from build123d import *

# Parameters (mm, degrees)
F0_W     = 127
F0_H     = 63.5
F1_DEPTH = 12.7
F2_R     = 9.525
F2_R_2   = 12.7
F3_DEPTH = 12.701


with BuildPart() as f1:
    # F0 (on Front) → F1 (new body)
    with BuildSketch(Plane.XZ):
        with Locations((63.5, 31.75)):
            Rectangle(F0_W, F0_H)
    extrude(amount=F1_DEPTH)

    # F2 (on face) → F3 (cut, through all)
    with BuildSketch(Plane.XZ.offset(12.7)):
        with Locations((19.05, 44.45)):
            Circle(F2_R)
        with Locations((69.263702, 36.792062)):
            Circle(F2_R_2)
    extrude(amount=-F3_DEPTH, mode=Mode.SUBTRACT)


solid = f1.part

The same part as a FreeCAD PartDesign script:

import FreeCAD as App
import Part
import Sketcher
from FreeCAD import Vector
Q = App.Units.Quantity

doc = App.newDocument("Part")
body = doc.addObject("PartDesign::Body", "Body")

# Sketch on XZ plane
sketch1 = body.newObject("Sketcher::SketchObject", "Sketch")
sketch1.AttachmentSupport = (doc.getObject("XZ_Plane"), [""])
sketch1.MapMode = "FlatFace"
sketch1.addGeometry(Part.LineSegment(Vector(0, 64, 0), Vector(0, 0, 0)), False)
sketch1.addGeometry(Part.LineSegment(Vector(0, 0, 0), Vector(127, 0, 0)), False)
sketch1.addGeometry(Part.LineSegment(Vector(127, 0, 0), Vector(127, 64, 0)), False)
sketch1.addGeometry(Part.LineSegment(Vector(127, 64, 0), Vector(0, 64, 0)), False)
sketch1.addConstraint(Sketcher.Constraint("Coincident", 0, 2, 1, 1))
sketch1.addConstraint(Sketcher.Constraint("Coincident", 1, 2, 2, 1))
sketch1.addConstraint(Sketcher.Constraint("Coincident", 2, 2, 3, 1))
sketch1.addConstraint(Sketcher.Constraint("Coincident", 3, 2, 0, 1))
sketch1.addConstraint(Sketcher.Constraint("Vertical", 0))
sketch1.addConstraint(Sketcher.Constraint("Horizontal", 1))
sketch1.addConstraint(Sketcher.Constraint("Vertical", 2))
sketch1.addConstraint(Sketcher.Constraint("Horizontal", 3))
sketch1.addConstraint(Sketcher.Constraint("Coincident", 0, 2, -1, 1))
sketch1.addConstraint(Sketcher.Constraint("DistanceX", 1, 1, 1, 2, Q("5 in")))
sketch1.addConstraint(Sketcher.Constraint("DistanceY", 0, 2, 0, 1, Q("2.5 in")))
pad1 = body.newObject("PartDesign::Pad", "Pad")
pad1.Profile = sketch1
pad1.Length = Q("0.5 in")

# Sketch on XZ plane
sketch2 = body.newObject("Sketcher::SketchObject", "Sketch001")
sketch2.AttachmentSupport = (doc.getObject("XZ_Plane"), [""])
sketch2.MapMode = "FlatFace"
sketch2.AttachmentOffset = App.Placement(Vector(0, 0, 0.5 * 25.4), App.Rotation())
sketch2.addGeometry(Part.Circle(Vector(19, 44, 0), Vector(0, 0, 1), 10), False)
sketch2.addGeometry(Part.Circle(Vector(69, 37, 0), Vector(0, 0, 1), 13), False)
sketch2.addConstraint(Sketcher.Constraint("Diameter", 1, Q("1 in")))
sketch2.addConstraint(Sketcher.Constraint("Diameter", 0, Q("0.75 in")))
sketch2.addConstraint(Sketcher.Constraint("DistanceX", -1, 1, 0, 3, Q("0.75 in")))
sketch2.addConstraint(Sketcher.Constraint("DistanceY", -1, 1, 0, 3, Q("1.75 in")))
sketch2.addConstraint(Sketcher.Constraint("DistanceX", -1, 1, 1, 3, 69.263702))
sketch2.addConstraint(Sketcher.Constraint("DistanceY", 1, 3, 0, 3, 7.657938))
pocket1 = body.newObject("PartDesign::Pocket", "Pocket")
pocket1.Profile = sketch2
pocket1.Type = "ThroughAll"

doc.recompute()
